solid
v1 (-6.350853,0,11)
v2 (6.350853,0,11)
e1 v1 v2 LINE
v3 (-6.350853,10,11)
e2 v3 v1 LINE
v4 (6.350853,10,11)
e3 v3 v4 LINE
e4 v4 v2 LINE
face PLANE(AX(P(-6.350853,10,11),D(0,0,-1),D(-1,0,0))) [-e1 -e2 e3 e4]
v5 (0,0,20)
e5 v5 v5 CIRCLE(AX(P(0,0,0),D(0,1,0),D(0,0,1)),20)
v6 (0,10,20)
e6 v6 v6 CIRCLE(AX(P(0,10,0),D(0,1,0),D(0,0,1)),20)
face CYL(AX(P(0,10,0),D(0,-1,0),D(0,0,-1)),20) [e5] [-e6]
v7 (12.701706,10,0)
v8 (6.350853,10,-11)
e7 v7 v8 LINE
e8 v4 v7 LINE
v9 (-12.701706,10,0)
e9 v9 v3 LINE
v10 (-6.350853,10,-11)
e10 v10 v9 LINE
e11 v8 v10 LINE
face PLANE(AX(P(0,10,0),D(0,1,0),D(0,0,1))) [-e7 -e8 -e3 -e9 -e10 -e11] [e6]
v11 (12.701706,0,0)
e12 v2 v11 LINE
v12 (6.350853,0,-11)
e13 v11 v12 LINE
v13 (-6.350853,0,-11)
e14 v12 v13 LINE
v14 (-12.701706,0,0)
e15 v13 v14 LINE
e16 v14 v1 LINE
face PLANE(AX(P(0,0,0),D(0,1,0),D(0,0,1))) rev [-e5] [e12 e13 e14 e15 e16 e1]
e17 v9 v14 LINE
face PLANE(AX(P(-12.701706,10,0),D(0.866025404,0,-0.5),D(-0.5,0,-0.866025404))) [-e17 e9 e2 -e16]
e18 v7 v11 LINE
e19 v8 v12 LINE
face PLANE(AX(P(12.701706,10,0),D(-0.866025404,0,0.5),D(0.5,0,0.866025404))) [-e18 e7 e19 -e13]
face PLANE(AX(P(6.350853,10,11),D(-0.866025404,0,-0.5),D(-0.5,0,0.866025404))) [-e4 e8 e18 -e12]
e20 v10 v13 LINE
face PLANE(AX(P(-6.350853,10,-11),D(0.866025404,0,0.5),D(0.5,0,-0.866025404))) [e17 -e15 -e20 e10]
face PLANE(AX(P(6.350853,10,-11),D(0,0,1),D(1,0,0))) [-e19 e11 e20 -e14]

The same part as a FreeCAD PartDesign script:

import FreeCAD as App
import Part
import Sketcher
from FreeCAD import Vector
Q = App.Units.Quantity

doc = App.newDocument("Part")
body = doc.addObject("PartDesign::Body", "Body")

sketch1 = body.newObject("Sketcher::SketchObject", "Sketch")
sketch1.AttachmentSupport = (doc.getObject("XZ_Plane"), [""])
sketch1.MapMode = "FlatFace"
sketch1.addGeometry([
    Part.Circle(Vector(0, 0, 0), Vector(0, 0, 1), 20),
    Part.LineSegment(Vector(6.350853, -11, 0), Vector(12.701706, 0, 0)),
    Part.LineSegment(Vector(12.701706, 0, 0), Vector(6.350853, 11, 0)),
    Part.LineSegment(Vector(6.350853, 11, 0), Vector(-6.350853, 11, 0)),
    Part.LineSegment(Vector(-6.350853, 11, 0), Vector(-12.701706, 0, 0)),
    Part.LineSegment(Vector(-12.701706, 0, 0), Vector(-6.350853, -11, 0)),
    Part.LineSegment(Vector(-6.350853, -11, 0), Vector(6.350853, -11, 0)),
], False)
sketch1.addConstraint([
    Sketcher.Constraint("Coincident", 1, 2, 2, 1),
    Sketcher.Constraint("Coincident", 2, 2, 3, 1),
    Sketcher.Constraint("Coincident", 3, 2, 4, 1),
    Sketcher.Constraint("Coincident", 4, 2, 5, 1),
    Sketcher.Constraint("Coincident", 5, 2, 6, 1),
    Sketcher.Constraint("Coincident", 6, 2, 1, 1),
    Sketcher.Constraint("Horizontal", 3),
    Sketcher.Constraint("Horizontal", 6),
    Sketcher.Constraint("Coincident", 0, 3, -1, 1),
    Sketcher.Constraint("Symmetric", 1, 2, 4, 2, -1, 1),
    Sketcher.Constraint("Symmetric", 2, 2, 5, 2, -1, 1),
    Sketcher.Constraint("PointOnObject", 1, 2, -1),
    Sketcher.Constraint("Parallel", 1, 4),
    Sketcher.Constraint("Vertical", 3, 2, 5, 2),
    Sketcher.Constraint("Diameter", 0, Q("40 mm")),
    Sketcher.Constraint("Angle", 1, Q("60 deg")),
    Sketcher.Constraint("DistanceY", -1, 1, 2, 2, Q("11 mm")),
    Sketcher.Constraint("DistanceX", 3, 2, 3, 1, Q("12.701706 mm")),
])
pad1 = body.newObject("PartDesign::Pad", "Pad")
pad1.Profile = sketch1
pad1.Length = 10
pad1.Reversed = True

doc.recompute()
